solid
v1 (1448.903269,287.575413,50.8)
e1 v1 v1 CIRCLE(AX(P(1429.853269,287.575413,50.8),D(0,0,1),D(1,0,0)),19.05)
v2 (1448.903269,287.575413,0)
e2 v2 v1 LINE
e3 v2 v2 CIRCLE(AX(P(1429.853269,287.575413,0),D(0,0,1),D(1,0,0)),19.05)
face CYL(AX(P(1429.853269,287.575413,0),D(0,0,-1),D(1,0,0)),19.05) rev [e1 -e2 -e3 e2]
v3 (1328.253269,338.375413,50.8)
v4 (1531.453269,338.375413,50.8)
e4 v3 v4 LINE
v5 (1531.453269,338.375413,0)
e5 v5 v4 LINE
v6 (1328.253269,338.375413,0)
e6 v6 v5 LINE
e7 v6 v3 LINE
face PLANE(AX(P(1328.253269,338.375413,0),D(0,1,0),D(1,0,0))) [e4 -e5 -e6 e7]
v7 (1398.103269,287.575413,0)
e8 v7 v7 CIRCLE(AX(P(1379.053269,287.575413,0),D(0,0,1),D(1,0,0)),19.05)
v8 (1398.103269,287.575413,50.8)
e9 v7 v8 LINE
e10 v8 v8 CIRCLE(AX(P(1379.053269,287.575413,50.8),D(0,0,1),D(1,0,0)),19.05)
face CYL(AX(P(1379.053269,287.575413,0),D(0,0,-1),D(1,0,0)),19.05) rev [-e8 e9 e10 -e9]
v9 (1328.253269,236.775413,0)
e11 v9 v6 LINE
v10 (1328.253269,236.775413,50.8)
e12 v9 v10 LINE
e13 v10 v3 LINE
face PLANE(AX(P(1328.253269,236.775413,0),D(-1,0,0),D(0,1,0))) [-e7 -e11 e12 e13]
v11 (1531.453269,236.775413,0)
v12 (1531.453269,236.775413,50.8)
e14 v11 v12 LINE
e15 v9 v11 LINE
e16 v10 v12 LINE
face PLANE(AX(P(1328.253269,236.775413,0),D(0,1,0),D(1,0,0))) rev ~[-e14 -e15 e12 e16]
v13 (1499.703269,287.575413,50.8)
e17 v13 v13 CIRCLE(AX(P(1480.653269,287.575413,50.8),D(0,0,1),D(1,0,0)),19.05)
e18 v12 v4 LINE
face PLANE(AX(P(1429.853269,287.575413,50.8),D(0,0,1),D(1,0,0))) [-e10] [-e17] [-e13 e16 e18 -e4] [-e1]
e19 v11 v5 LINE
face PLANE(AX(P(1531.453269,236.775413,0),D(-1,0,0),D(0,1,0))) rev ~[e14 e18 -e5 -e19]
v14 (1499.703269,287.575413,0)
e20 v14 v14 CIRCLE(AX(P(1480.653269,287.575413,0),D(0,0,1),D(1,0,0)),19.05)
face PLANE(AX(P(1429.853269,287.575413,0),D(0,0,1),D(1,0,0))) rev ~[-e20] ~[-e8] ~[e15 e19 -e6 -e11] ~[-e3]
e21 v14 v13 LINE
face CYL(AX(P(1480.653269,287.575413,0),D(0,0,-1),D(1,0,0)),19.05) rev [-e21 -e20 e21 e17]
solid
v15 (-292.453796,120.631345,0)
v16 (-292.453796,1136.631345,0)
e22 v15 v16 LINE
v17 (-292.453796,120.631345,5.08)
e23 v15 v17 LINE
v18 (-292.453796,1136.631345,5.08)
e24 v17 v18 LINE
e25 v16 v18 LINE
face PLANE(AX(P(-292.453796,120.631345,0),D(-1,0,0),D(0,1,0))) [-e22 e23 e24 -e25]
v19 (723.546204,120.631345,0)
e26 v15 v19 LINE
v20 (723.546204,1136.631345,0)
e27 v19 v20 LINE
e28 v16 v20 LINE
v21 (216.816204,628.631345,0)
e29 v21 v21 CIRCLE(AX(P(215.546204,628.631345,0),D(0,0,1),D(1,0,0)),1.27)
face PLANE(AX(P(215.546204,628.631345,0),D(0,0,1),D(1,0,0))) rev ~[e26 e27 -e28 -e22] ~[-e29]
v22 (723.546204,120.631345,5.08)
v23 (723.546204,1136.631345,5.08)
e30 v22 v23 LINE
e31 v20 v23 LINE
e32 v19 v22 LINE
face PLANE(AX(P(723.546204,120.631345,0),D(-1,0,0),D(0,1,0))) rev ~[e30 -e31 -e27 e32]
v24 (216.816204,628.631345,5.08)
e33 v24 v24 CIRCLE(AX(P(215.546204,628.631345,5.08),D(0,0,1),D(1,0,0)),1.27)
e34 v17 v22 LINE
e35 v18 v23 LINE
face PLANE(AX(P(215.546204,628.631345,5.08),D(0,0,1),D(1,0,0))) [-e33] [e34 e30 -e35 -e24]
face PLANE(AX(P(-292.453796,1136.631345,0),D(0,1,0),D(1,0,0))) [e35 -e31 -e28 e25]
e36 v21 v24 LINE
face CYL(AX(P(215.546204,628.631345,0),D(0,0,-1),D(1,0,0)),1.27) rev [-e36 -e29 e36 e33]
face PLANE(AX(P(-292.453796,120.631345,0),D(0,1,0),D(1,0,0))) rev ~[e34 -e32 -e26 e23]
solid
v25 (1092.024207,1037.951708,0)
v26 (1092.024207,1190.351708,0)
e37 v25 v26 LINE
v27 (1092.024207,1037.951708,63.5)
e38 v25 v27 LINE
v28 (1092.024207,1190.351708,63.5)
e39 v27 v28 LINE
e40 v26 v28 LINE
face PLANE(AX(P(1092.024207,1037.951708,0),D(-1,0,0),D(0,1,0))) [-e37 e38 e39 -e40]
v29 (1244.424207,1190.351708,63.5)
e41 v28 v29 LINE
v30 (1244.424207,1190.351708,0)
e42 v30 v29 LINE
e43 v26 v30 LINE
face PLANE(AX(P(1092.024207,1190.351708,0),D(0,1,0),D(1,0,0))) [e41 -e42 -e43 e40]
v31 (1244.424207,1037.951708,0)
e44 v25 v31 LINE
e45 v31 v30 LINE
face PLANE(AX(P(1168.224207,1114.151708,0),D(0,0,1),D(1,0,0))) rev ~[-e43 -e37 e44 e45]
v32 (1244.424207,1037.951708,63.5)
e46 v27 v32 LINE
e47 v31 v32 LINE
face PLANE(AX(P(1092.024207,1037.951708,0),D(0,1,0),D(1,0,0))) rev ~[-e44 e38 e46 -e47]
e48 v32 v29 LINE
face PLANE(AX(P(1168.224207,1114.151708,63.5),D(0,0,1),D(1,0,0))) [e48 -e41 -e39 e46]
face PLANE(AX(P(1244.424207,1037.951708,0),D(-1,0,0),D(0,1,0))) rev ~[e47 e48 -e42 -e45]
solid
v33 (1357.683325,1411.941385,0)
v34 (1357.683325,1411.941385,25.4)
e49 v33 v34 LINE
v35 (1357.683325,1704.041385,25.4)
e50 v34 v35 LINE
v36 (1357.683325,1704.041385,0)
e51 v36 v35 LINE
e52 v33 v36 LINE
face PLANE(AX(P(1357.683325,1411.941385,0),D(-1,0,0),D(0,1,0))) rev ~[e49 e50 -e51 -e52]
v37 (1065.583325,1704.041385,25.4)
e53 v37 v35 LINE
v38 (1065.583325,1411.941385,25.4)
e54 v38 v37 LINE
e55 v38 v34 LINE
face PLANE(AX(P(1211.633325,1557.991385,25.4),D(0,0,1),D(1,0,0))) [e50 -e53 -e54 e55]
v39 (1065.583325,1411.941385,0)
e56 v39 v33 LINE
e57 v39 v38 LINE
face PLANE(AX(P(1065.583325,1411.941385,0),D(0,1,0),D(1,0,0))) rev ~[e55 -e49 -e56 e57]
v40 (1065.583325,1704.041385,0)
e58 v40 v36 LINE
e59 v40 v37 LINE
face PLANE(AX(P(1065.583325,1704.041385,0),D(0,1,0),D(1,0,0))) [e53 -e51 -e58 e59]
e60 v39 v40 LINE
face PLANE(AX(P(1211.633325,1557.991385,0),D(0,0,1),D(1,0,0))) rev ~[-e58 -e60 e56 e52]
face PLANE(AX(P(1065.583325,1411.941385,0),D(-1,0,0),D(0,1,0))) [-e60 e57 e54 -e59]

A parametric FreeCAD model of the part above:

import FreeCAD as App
import Part
import Sketcher

V = App.Vector
Q = App.Units.Quantity


def add_polygon(sketch, points):
    """Adds a closed chain of lines whose ends are joined by coincident constraints."""
    first, n = sketch.GeometryCount, len(points)
    for a, b in zip(points, points[1:] + points[:1]):
        sketch.addGeometry(Part.LineSegment(App.Vector(*a, 0), App.Vector(*b, 0)), False)
    for i in range(n):
        sketch.addConstraint(Sketcher.Constraint("Coincident", first + i, 2, first + (i + 1) % n, 1))

doc = App.newDocument("Part")
body = doc.addObject("PartDesign::Body", "Body")

sketch1 = body.newObject("Sketcher::SketchObject", "Sketch")
sketch1.AttachmentSupport = (doc.getObject("XY_Plane"), [""])
sketch1.MapMode = "FlatFace"
add_polygon(sketch1, [(1066, 1704), (1066, 1412), (1358, 1412), (1358, 1704)])
sketch1.addConstraint([
    Sketcher.Constraint("Vertical", 0),
    Sketcher.Constraint("Horizontal", 1),
    Sketcher.Constraint("Vertical", 2),
    Sketcher.Constraint("Horizontal", 3),
    Sketcher.Constraint("Equal", 3, 0),
    Sketcher.Constraint("DistanceX", 1, 1, 1, 2, Q("11.5 in")),
    Sketcher.Constraint("DistanceX", -1, 1, 0, 2, Q("1065.583325 mm")),
    Sketcher.Constraint("DistanceY", -1, 1, 0, 2, Q("1411.941385 mm")),
])
pad1 = body.newObject("PartDesign::Pad", "Pad")
pad1.Profile = sketch1
pad1.Length = Q("1 in")
body2 = doc.addObject("PartDesign::Body", "Body001")

sketch2 = body2.newObject("Sketcher::SketchObject", "Sketch001")
sketch2.AttachmentSupport = (doc.getObject("XY_Plane001"), [""])
sketch2.MapMode = "FlatFace"
add_polygon(sketch2, [(1092, 1190), (1092, 1038), (1244, 1038), (1244, 1190)])
sketch2.addConstraint([
    Sketcher.Constraint("Vertical", 0),
    Sketcher.Constraint("Horizontal", 1),
    Sketcher.Constraint("Vertical", 2),
    Sketcher.Constraint("Horizontal", 3),
    Sketcher.Constraint("Equal", 3, 0),
    Sketcher.Constraint("DistanceX", 1, 1, 1, 2, Q("6 in")),
    Sketcher.Constraint("DistanceY", -1, 1, 0, 2, Q("1037.951708 mm")),
    Sketcher.Constraint("DistanceX", -1, 1, 0, 2, Q("1092.024207 mm")),
])
pad2 = body2.newObject("PartDesign::Pad", "Pad001")
pad2.Profile = sketch2
pad2.Length = Q("2.5 in")
body3 = doc.addObject("PartDesign::Body", "Body002")

sketch3 = body3.newObject("Sketcher::SketchObject", "Sketch002")
sketch3.AttachmentSupport = (doc.getObject("XY_Plane002"), [""])
sketch3.MapMode = "FlatFace"
add_polygon(sketch3, [(-292.5, 1136.6), (-292.5, 120.6), (723.5, 120.6), (723.5, 1136.6)])
sketch3.addGeometry(Part.Circle(V(215.5, 628.6, 0), V(0, 0, 1), 1.3), False)
sketch3.addConstraint([
    Sketcher.Constraint("Vertical", 0),
    Sketcher.Constraint("Horizontal", 1),
    Sketcher.Constraint("Vertical", 2),
    Sketcher.Constraint("Horizontal", 3),
    Sketcher.Constraint("Equal", 3, 0),
    Sketcher.Constraint("Diameter", 4, Q("0.1 in")),
    Sketcher.Constraint("DistanceX", 1, 1, 1, 2, Q("40 in")),
    Sketcher.Constraint("DistanceX", 0, 2, 4, 3, Q("20 in")),
    Sketcher.Constraint("DistanceY", 0, 2, 4, 3, Q("20 in")),
    Sketcher.Constraint("DistanceX", -1, 1, 4, 3, Q("215.546204 mm")),
    Sketcher.Constraint("DistanceY", -1, 1, 4, 3, Q("628.631345 mm")),
])
pad3 = body3.newObject("PartDesign::Pad", "Pad002")
pad3.Profile = sketch3
pad3.Length = Q("0.2 in")
body4 = doc.addObject("PartDesign::Body", "Body003")

sketch4 = body4.newObject("Sketcher::SketchObject", "Sketch003")
sketch4.AttachmentSupport = (doc.getObject("XY_Plane003"), [""])
sketch4.MapMode = "FlatFace"
add_polygon(sketch4, [(1328, 338), (1328, 237), (1531, 237), (1531, 338)])
sketch4.addGeometry(Part.Circle(V(1379, 288, 0), V(0, 0, 1), 19), False)
sketch4.addGeometry(Part.Circle(V(1430, 288, 0), V(0, 0, 1), 19), False)
sketch4.addGeometry(Part.Circle(V(1481, 288, 0), V(0, 0, 1), 19), False)
sketch4.addConstraint([
    Sketcher.Constraint("Vertical", 0),
    Sketcher.Constraint("Horizontal", 1),
    Sketcher.Constraint("Vertical", 2),
    Sketcher.Constraint("Horizontal", 3),
    Sketcher.Constraint("Equal", 4, 5),
    Sketcher.Constraint("Equal", 5, 6),
    Sketcher.Constraint("Horizontal", 4, 3, 5, 3),
    Sketcher.Constraint("Horizontal", 5, 3, 6, 3),
    Sketcher.Constraint("Diameter", 4, Q("1.5 in")),
    Sketcher.Constraint("DistanceX", 1, 1, 1, 2, Q("8 in")),
    Sketcher.Constraint("DistanceY", 0, 2, 0, 1, Q("4 in")),
    Sketcher.Constraint("DistanceX", 4, 3, 5, 3, Q("2 in")),
    Sketcher.Constraint("DistanceX", 5, 3, 6, 3, Q("2 in")),
    Sketcher.Constraint("DistanceX", 0, 2, 4, 3, Q("2 in")),
    Sketcher.Constraint("DistanceY", 0, 2, 4, 3, Q("2 in")),
    Sketcher.Constraint("DistanceX", -1, 1, 4, 3, Q("1379.053269 mm")),
    Sketcher.Constraint("DistanceY", -1, 1, 4, 3, Q("287.575413 mm")),
])
pad4 = body4.newObject("PartDesign::Pad", "Pad003")
pad4.Profile = sketch4
pad4.Length = Q("2 in")

doc.recompute()
